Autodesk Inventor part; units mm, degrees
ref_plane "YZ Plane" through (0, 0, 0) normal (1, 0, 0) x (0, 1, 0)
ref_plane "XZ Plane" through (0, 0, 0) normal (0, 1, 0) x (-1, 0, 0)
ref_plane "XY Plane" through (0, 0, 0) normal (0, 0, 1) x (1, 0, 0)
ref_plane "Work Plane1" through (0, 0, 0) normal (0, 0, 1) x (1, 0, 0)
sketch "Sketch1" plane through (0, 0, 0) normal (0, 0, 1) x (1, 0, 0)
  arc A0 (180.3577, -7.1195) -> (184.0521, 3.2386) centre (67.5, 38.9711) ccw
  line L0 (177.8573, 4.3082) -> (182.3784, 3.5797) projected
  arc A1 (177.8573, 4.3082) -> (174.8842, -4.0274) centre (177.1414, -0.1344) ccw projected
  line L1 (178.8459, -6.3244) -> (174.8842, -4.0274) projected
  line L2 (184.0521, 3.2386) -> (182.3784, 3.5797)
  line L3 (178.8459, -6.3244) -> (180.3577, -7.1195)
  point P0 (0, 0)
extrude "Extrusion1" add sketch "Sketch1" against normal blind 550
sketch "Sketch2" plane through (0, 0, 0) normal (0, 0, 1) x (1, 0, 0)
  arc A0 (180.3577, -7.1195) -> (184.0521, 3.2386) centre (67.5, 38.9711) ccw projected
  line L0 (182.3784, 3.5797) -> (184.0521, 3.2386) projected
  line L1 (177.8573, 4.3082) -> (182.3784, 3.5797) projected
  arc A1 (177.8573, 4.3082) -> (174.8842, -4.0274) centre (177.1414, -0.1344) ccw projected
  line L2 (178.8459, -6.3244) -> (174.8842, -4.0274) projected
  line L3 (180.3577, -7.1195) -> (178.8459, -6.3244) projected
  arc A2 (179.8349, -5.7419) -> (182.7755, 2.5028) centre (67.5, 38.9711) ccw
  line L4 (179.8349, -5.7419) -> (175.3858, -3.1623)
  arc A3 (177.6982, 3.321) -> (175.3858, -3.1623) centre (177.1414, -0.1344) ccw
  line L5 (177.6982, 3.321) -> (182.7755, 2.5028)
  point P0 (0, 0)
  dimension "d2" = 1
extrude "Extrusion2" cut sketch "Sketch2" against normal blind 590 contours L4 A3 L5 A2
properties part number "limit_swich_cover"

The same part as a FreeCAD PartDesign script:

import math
import FreeCAD as App
import Part
import Sketcher
from FreeCAD import Vector
Q = App.Units.Quantity

doc = App.newDocument("Part")
body = doc.addObject("PartDesign::Body", "Body")

sketch1 = body.newObject("Sketcher::SketchObject", "Sketch")
sketch1.AttachmentSupport = (doc.getObject("XY_Plane"), [""])
sketch1.MapMode = "FlatFace"
sketch1.addGeometry(Part.LineSegment(Vector(178.8, -6.3, 0), Vector(180.4, -7.1, 0)), False)
sketch1.addGeometry(Part.ArcOfCircle(Part.Circle(Vector(67.5, 39, 0), Vector(0, 0, 1), 121.9), math.radians(-22.21), math.radians(-17.04)), False)
sketch1.addGeometry(Part.LineSegment(Vector(184.1, 3.2, 0), Vector(182.4, 3.6, 0)), False)
sketch1.addGeometry(Part.LineSegment(Vector(182.4, 3.6, 0), Vector(177.9, 4.3, 0)), False)
sketch1.addGeometry(Part.ArcOfCircle(Part.Circle(Vector(177.1, -0.1, 0), Vector(0, 0, 1), 4.5), math.radians(81), math.radians(240)), False)
sketch1.addGeometry(Part.LineSegment(Vector(174.9, -4, 0), Vector(178.8, -6.3, 0)), False)
sketch1.addConstraint(Sketcher.Constraint("Coincident", 0, 2, 1, 1))
sketch1.addConstraint(Sketcher.Constraint("Coincident", 1, 2, 2, 1))
sketch1.addConstraint(Sketcher.Constraint("Coincident", 2, 2, 3, 1))
sketch1.addConstraint(Sketcher.Constraint("Tangent", 3, 2, 4, 1))
sketch1.addConstraint(Sketcher.Constraint("Tangent", 4, 2, 5, 1))
sketch1.addConstraint(Sketcher.Constraint("Coincident", 5, 2, 0, 1))
sketch1.addConstraint(Sketcher.Constraint("Equal", 0, 2))
sketch1.addConstraint(Sketcher.Constraint("Equal", 3, 5))
sketch1.addConstraint(Sketcher.Constraint("Radius", 4, 4.5))
sketch1.addConstraint(Sketcher.Constraint("DistanceX", -1, 1, 1, 3, 67.5))
sketch1.addConstraint(Sketcher.Constraint("Angle", 0, Q("-27.7412 deg")))
sketch1.addConstraint(Sketcher.Constraint("Angle", 2, Q("168.4809 deg")))
sketch1.addConstraint(Sketcher.Constraint("Radius", 1, 121.9065))
sketch1.addConstraint(Sketcher.Constraint("DistanceY", 5, 2, 4, 3, 6.19))
sketch1.addConstraint(Sketcher.Constraint("Distance", 2, 1.708))
sketch1.addConstraint(Sketcher.Constraint("DistanceY", -1, 1, 1, 3, 38.971))
sketch1.addConstraint(Sketcher.Constraint("DistanceX", -1, 1, 1, 2, 184.052))
sketch1.addConstraint(Sketcher.Constraint("DistanceX", -1, 1, 5, 2, 178.846))
pad1 = body.newObject("PartDesign::Pad", "Pad")
pad1.Profile = sketch1
pad1.Length = 550
pad1.Reversed = True

sketch2 = body.newObject("Sketcher::SketchObject", "Sketch001")
sketch2.AttachmentSupport = (doc.getObject("XY_Plane"), [""])
sketch2.MapMode = "FlatFace"
sketch2.addGeometry(Part.LineSegment(Vector(175.4, -3.2, 0), Vector(179.8, -5.7, 0)), False)
sketch2.addGeometry(Part.ArcOfCircle(Part.Circle(Vector(67.5, 39, 0), Vector(0, 0, 1), 120.9), math.radians(-21.7), math.radians(-17.55)), False)
sketch2.addGeometry(Part.LineSegment(Vector(182.8, 2.5, 0), Vector(177.7, 3.3, 0)), False)
sketch2.addGeometry(Part.ArcOfCircle(Part.Circle(Vector(177.1, -0.1, 0), Vector(0, 0, 1), 3.5), math.radians(81), math.radians(240)), False)
sketch2.addConstraint(Sketcher.Constraint("Coincident", 0, 2, 1, 1))
sketch2.addConstraint(Sketcher.Constraint("Coincident", 1, 2, 2, 1))
sketch2.addConstraint(Sketcher.Constraint("Tangent", 2, 2, 3, 1))
sketch2.addConstraint(Sketcher.Constraint("Tangent", 3, 2, 0, 1))
sketch2.addConstraint(Sketcher.Constraint("Equal", 0, 2))
sketch2.addConstraint(Sketcher.Constraint("Radius", 3, 3.5))
sketch2.addConstraint(Sketcher.Constraint("Radius", 1, 120.8929))
sketch2.addConstraint(Sketcher.Constraint("DistanceX", -1, 1, 0, 2, 179.835))
sketch2.addConstraint(Sketcher.Constraint("DistanceY", 0, 2, -1, 1, 5.742))
sketch2.addConstraint(Sketcher.Constraint("DistanceY", -1, 1, 2, 2, 3.321))
sketch2.addConstraint(Sketcher.Constraint("DistanceX", 3, 3, 1, 2, 5.634))
sketch2.addConstraint(Sketcher.Constraint("DistanceX", 3, 2, 0, 2, 4.449))
pocket1 = body.newObject("PartDesign::Pocket", "Pocket")
pocket1.Profile = sketch2
pocket1.Length = 590

doc.recompute()
